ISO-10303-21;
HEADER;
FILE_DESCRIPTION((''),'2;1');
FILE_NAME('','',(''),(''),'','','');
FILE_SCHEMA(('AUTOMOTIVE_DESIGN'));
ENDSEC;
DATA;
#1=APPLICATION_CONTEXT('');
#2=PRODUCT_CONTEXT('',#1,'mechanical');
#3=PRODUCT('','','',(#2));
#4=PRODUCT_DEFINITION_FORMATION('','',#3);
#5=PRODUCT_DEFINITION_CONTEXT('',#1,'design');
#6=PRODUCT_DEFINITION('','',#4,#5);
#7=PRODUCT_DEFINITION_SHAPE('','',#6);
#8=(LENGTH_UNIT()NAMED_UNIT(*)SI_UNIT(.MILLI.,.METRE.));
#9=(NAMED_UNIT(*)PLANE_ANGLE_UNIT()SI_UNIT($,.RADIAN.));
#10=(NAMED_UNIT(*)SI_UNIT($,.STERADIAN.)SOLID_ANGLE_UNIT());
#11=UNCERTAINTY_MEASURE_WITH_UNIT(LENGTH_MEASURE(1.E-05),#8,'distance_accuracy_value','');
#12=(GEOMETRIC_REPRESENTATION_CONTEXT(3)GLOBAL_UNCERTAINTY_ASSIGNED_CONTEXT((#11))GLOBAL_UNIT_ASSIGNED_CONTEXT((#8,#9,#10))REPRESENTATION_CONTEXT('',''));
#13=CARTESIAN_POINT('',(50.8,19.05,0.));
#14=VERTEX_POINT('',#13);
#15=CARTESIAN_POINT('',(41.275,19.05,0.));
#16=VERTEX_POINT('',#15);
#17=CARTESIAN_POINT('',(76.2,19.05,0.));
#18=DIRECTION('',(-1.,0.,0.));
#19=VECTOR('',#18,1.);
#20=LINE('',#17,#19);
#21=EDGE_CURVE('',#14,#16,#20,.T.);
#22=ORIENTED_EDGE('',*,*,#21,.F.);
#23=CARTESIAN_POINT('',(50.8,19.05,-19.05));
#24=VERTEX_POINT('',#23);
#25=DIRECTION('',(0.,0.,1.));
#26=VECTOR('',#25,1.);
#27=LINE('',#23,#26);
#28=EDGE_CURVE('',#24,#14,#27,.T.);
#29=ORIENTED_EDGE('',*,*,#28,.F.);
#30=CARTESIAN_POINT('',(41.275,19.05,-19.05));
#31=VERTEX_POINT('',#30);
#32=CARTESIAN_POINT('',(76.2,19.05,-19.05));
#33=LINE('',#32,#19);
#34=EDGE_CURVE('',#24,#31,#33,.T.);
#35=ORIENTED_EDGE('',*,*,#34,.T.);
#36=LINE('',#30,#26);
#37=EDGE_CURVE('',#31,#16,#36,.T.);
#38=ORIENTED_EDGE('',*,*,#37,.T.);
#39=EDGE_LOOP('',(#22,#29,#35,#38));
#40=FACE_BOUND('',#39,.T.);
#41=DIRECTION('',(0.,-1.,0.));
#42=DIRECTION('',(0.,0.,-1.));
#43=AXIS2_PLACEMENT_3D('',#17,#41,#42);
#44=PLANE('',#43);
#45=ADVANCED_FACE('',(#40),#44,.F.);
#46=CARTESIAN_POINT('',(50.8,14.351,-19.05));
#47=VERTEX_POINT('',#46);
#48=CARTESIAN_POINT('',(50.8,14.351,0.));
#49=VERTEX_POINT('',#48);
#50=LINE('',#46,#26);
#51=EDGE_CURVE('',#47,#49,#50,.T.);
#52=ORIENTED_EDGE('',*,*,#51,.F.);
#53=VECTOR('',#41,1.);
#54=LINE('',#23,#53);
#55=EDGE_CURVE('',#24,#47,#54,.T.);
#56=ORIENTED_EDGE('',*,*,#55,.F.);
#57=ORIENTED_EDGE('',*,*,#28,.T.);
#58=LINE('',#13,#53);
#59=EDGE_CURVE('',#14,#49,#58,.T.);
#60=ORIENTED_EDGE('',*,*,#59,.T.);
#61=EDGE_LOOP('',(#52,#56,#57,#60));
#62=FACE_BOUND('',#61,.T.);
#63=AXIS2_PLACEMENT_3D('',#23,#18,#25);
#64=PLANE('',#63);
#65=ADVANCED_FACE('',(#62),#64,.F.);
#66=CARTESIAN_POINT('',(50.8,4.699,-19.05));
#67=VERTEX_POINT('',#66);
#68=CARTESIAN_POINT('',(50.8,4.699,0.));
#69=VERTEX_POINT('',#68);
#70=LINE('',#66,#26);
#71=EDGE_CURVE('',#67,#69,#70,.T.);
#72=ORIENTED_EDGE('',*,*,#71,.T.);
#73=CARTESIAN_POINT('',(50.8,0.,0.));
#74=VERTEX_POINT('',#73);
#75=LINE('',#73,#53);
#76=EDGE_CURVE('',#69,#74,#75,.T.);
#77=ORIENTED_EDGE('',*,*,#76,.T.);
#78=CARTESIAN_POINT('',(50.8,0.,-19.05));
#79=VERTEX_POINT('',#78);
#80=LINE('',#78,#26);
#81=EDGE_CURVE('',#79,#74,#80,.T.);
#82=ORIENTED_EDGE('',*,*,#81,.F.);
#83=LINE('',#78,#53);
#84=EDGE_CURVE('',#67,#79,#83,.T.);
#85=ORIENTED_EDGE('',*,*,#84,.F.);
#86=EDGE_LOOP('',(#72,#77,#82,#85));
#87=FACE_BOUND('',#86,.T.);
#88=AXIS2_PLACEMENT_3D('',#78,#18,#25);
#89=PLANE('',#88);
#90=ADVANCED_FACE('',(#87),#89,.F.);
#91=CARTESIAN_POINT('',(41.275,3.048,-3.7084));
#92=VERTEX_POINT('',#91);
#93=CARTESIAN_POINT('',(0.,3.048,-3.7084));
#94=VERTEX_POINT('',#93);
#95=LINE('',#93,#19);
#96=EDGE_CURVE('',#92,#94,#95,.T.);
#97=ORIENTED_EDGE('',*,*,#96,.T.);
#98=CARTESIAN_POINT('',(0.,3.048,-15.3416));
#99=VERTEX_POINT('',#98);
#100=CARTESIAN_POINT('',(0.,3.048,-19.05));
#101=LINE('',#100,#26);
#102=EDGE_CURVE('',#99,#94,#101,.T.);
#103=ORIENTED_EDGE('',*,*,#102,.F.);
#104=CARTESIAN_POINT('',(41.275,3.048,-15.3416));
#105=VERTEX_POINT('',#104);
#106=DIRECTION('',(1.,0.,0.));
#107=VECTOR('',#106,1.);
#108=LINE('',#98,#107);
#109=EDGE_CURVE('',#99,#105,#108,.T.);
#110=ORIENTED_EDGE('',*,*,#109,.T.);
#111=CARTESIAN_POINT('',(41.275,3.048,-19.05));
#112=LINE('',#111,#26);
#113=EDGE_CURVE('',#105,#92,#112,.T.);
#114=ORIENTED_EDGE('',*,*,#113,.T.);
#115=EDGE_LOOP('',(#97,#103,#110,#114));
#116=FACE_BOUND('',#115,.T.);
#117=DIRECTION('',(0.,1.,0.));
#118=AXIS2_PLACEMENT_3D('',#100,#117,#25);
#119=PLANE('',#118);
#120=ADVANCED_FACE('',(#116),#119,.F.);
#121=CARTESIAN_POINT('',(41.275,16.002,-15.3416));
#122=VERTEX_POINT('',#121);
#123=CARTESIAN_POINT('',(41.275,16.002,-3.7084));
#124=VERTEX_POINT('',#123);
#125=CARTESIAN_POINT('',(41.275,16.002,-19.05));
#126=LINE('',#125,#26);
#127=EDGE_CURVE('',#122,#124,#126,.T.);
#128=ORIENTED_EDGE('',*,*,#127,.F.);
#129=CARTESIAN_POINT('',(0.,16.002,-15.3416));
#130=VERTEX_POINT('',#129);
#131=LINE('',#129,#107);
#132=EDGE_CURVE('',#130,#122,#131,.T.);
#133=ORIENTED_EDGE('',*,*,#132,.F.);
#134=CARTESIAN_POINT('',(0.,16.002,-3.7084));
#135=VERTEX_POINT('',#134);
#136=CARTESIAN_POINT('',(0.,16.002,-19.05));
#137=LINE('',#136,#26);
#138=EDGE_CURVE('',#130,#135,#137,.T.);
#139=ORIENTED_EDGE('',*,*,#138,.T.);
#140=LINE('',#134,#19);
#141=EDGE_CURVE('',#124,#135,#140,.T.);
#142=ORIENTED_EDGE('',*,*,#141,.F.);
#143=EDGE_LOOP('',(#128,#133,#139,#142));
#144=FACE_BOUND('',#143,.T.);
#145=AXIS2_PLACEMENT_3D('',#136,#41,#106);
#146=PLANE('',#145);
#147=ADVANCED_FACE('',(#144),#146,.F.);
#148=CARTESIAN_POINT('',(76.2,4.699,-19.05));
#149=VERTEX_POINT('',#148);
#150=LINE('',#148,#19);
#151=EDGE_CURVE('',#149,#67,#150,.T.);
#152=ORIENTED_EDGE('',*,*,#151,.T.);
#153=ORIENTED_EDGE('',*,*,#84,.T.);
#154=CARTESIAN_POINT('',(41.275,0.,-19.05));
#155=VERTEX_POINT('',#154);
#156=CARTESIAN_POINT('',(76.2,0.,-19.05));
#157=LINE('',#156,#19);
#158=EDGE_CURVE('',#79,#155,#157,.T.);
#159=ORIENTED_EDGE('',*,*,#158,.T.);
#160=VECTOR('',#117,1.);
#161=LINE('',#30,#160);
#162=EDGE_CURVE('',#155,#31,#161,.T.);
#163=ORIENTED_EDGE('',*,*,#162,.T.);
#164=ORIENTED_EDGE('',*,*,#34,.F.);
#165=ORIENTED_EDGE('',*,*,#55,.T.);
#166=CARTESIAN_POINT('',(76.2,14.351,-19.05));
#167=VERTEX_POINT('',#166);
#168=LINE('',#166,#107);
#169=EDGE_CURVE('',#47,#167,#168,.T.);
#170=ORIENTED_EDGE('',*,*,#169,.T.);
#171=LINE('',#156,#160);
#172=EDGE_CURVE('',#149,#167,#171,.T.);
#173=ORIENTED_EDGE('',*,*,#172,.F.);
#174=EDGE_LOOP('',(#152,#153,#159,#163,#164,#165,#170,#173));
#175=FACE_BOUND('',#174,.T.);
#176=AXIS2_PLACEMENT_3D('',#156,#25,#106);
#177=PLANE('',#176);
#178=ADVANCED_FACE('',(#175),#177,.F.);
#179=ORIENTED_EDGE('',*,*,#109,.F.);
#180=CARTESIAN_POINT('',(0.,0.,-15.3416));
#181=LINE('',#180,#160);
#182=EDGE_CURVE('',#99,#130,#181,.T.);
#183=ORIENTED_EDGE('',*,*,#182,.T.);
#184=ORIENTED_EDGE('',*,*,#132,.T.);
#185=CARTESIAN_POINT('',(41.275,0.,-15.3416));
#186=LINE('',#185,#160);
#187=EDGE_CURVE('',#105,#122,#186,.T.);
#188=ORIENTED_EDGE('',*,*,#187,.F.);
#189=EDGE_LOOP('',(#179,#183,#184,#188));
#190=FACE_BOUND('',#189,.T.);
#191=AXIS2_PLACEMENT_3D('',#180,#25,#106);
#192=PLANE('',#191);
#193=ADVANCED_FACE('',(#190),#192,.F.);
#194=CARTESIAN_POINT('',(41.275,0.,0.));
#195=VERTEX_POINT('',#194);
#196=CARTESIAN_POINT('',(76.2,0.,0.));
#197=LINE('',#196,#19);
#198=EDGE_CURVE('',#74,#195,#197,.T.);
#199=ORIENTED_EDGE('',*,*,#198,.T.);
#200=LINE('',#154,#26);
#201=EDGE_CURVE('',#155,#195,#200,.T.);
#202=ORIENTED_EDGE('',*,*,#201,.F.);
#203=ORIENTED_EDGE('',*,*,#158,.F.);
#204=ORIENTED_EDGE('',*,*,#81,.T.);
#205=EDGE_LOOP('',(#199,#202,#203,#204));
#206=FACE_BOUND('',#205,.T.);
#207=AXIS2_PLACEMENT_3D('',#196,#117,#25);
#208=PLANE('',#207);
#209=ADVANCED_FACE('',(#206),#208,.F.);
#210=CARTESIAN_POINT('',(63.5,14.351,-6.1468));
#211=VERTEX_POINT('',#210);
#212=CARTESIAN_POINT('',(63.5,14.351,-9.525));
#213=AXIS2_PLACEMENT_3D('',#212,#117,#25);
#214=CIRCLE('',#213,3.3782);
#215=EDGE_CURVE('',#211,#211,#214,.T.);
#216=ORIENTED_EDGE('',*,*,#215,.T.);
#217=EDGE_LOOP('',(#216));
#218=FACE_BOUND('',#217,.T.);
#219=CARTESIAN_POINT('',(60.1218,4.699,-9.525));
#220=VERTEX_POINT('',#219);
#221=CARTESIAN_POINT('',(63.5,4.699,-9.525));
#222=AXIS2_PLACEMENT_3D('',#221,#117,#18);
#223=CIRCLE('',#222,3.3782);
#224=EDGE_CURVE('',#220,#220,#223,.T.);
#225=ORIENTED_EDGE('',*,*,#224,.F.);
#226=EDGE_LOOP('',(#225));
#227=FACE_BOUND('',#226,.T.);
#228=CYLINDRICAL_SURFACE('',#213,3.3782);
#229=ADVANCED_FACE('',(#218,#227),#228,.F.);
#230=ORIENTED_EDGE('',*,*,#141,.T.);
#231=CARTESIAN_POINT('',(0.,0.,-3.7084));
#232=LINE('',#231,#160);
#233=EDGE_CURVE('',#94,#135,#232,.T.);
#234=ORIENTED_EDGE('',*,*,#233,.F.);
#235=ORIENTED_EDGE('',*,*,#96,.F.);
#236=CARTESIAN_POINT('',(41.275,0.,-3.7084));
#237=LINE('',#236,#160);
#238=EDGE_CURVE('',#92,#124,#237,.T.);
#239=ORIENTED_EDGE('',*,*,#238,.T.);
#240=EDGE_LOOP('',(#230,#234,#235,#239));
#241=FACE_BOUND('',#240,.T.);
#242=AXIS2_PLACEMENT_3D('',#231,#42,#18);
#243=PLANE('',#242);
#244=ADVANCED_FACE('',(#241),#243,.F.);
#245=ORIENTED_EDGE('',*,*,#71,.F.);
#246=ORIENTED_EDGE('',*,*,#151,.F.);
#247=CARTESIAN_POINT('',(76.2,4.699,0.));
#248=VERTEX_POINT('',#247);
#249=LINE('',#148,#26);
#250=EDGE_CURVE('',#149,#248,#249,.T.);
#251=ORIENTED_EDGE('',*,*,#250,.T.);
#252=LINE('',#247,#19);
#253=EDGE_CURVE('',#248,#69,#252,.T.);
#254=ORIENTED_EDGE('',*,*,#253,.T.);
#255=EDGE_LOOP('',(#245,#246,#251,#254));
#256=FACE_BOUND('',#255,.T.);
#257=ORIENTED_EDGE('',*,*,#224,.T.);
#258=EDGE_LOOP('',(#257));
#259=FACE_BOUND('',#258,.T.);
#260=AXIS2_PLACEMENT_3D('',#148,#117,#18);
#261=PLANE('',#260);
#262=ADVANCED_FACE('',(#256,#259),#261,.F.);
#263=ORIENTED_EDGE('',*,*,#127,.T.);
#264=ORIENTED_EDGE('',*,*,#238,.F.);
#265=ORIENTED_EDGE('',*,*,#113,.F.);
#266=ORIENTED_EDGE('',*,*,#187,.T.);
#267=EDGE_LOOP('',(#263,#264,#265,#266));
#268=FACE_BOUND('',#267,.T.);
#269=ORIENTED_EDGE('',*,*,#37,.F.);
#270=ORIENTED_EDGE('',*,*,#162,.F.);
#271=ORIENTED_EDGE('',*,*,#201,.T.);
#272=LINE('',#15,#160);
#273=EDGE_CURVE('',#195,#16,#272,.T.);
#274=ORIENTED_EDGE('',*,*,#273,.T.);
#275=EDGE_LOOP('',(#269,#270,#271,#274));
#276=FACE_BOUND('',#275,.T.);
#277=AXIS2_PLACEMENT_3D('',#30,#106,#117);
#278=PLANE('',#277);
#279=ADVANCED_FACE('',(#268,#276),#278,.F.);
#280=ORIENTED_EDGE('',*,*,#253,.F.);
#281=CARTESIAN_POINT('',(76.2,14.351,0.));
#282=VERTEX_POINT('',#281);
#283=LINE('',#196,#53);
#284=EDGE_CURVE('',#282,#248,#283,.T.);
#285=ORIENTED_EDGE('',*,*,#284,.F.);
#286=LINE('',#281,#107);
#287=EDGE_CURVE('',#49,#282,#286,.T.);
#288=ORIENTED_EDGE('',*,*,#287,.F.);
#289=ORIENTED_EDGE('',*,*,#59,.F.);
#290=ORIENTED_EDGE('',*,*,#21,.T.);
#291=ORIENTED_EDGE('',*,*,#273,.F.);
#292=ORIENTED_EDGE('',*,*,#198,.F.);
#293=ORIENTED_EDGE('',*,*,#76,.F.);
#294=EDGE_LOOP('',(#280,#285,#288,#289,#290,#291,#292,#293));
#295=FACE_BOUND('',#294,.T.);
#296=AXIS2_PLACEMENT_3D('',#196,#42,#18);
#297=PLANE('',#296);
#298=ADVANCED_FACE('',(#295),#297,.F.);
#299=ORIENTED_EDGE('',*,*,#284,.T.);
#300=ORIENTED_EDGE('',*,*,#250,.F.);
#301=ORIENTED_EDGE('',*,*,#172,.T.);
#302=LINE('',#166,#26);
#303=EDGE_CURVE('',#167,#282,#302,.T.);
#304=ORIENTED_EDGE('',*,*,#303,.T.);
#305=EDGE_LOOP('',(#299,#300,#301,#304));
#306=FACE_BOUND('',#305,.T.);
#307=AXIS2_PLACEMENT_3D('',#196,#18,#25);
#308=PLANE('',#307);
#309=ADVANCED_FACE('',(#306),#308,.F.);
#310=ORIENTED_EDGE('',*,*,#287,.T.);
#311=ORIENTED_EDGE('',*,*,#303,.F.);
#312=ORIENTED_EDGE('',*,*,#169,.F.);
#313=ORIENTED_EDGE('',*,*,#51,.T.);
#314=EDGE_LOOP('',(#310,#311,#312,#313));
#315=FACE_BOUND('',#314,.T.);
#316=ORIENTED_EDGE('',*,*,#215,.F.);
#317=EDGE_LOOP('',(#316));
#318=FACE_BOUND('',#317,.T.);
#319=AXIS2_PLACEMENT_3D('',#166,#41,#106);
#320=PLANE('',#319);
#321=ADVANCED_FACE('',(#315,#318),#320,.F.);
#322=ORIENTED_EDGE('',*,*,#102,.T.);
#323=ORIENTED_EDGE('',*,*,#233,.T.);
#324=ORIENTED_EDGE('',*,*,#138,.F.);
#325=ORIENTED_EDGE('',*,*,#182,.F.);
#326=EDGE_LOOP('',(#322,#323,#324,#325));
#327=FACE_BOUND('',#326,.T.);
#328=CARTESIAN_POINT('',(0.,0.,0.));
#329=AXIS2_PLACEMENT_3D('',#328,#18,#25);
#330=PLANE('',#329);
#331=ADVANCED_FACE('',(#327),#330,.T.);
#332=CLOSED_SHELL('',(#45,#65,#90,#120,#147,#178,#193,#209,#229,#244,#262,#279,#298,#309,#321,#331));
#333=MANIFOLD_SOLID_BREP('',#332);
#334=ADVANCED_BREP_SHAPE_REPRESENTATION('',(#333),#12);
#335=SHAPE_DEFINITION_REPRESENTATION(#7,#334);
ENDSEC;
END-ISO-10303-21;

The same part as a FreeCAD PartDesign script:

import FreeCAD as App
import Part
import Sketcher
Q = App.Units.Quantity


def add_polygon(sketch, points):
    """Adds a closed chain of lines whose ends are joined by coincident constraints."""
    first, n = sketch.GeometryCount, len(points)
    for a, b in zip(points, points[1:] + points[:1]):
        sketch.addGeometry(Part.LineSegment(App.Vector(*a, 0), App.Vector(*b, 0)), False)
    for i in range(n):
        sketch.addConstraint(Sketcher.Constraint("Coincident", first + i, 2, first + (i + 1) % n, 1))

doc = App.newDocument("Part")
body = doc.addObject("PartDesign::Body", "Body")

sketch1 = doc.addObject("Sketcher::SketchObject", "Sketch")
body.addObject(sketch1)
sketch1.AttachmentSupport = (doc.YZ_Plane, [""])
sketch1.MapMode = "FlatFace"
add_polygon(sketch1, [(19.05, 0), (0, 0), (0, -19.05), (19.05, -19.05)])
sketch1.addConstraint([
    Sketcher.Constraint("Horizontal", 0),
    Sketcher.Constraint("Vertical", 1),
    Sketcher.Constraint("Horizontal", 2),
    Sketcher.Constraint("Vertical", 3),
    Sketcher.Constraint("Coincident", 0, 2, -1, 1),
    Sketcher.Constraint("Equal", 2, 1),
    Sketcher.Constraint("DistanceX", 0, 2, 0, 1, Q("0.75 in")),
])
pad1 = doc.addObject("PartDesign::Pad", "Pad")
body.addObject(pad1)
pad1.Profile = sketch1
pad1.Length = Q("3 in")

sketch2 = doc.addObject("Sketcher::SketchObject", "Sketch001")
body.addObject(sketch2)
sketch2.AttachmentSupport = (doc.XY_Plane, [""])
sketch2.MapMode = "FlatFace"
add_polygon(sketch2, [(50.8, 19.05), (50.8, 14.351), (76.2, 14.351), (76.2, 19.05)])
add_polygon(sketch2, [(50.8, 4.699), (50.8, 0), (76.2, 0), (76.2, 4.699)])
sketch2.addConstraint([
    Sketcher.Constraint("Vertical", 0),
    Sketcher.Constraint("Horizontal", 1),
    Sketcher.Constraint("Vertical", 2),
    Sketcher.Constraint("Horizontal", 3),
    Sketcher.Constraint("Vertical", 4),
    Sketcher.Constraint("Horizontal", 5),
    Sketcher.Constraint("Vertical", 6),
    Sketcher.Constraint("Horizontal", 7),
    Sketcher.Constraint("PointOnObject", 4, 2, -1),
    Sketcher.Constraint("Vertical", 3, 2, 4, 2),
    Sketcher.Constraint("Vertical", 2, 2, 5, 2),
    Sketcher.Constraint("Equal", 2, 4),
    Sketcher.Constraint("DistanceX", 1, 1, 1, 2, Q("1 in")),
    Sketcher.Constraint("DistanceX", -1, 1, 0, 2, Q("2 in")),
    Sketcher.Constraint("DistanceY", 0, 2, 0, 1, Q("0.185 in")),
    Sketcher.Constraint("DistanceY", -1, 1, 2, 2, Q("0.75 in")),
])
pocket1 = doc.addObject("PartDesign::Pocket", "Pocket")
body.addObject(pocket1)
pocket1.Profile = sketch2
pocket1.Type = "ThroughAll"

sketch3 = doc.addObject("Sketcher::SketchObject", "Sketch002")
body.addObject(sketch3)
sketch3.AttachmentSupport = (doc.XY_Plane, [""])
sketch3.MapMode = "FlatFace"
add_polygon(sketch3, [(0, 19.05), (0, 16.002), (41.275, 16.002), (41.275, 19.05)])
add_polygon(sketch3, [(0, 3.048), (0, 0), (41.275, 0), (41.275, 3.048)])
sketch3.addConstraint([
    Sketcher.Constraint("Vertical", 0),
    Sketcher.Constraint("Horizontal", 1),
    Sketcher.Constraint("Vertical", 2),
    Sketcher.Constraint("Horizontal", 3),
    Sketcher.Constraint("Vertical", 4),
    Sketcher.Constraint("Horizontal", 5),
    Sketcher.Constraint("Vertical", 6),
    Sketcher.Constraint("Horizontal", 7),
    Sketcher.Constraint("Coincident", 4, 2, -1, 1),
    Sketcher.Constraint("PointOnObject", 0, 2, -2),
    Sketcher.Constraint("Vertical", 2, 2, 5, 2),
    Sketcher.Constraint("Equal", 2, 4),
    Sketcher.Constraint("DistanceY", 0, 2, 0, 1, Q("0.12 in")),
    Sketcher.Constraint("DistanceX", 1, 1, 1, 2, Q("1.625 in")),
    Sketcher.Constraint("DistanceY", -1, 1, 0, 2, Q("0.63 in")),
])
pocket2 = doc.addObject("PartDesign::Pocket", "Pocket001")
body.addObject(pocket2)
pocket2.Profile = sketch3
pocket2.Type = "ThroughAll"

sketch4 = doc.addObject("Sketcher::SketchObject", "Sketch003")
body.addObject(sketch4)
sketch4.AttachmentSupport = (doc.XZ_Plane, [""])
sketch4.MapMode = "FlatFace"
sketch4.AttachmentOffset = App.Placement(App.Vector(0, 0, -0.63 * 25.4), App.Rotation())
add_polygon(sketch4, [(0, -19.05), (0, -15.3416), (41.275, -15.3416), (41.275, -19.05)])
add_polygon(sketch4, [(0, -3.7084), (0, 0), (41.275, 0), (41.275, -3.7084)])
sketch4.addConstraint([
    Sketcher.Constraint("Vertical", 0),
    Sketcher.Constraint("Horizontal", 1),
    Sketcher.Constraint("Vertical", 2),
    Sketcher.Constraint("Horizontal", 3),
    Sketcher.Constraint("Vertical", 4),
    Sketcher.Constraint("Horizontal", 5),
    Sketcher.Constraint("Vertical", 6),
    Sketcher.Constraint("Horizontal", 7),
    Sketcher.Constraint("Coincident", 4, 2, -1, 1),
    Sketcher.Constraint("PointOnObject", 0, 2, -2),
    Sketcher.Constraint("Vertical", 2, 2, 5, 2),
    Sketcher.Constraint("Equal", 2, 4),
    Sketcher.Constraint("DistanceX", 1, 1, 1, 2, Q("1.625 in")),
    Sketcher.Constraint("DistanceY", 0, 1, 0, 2, Q("0.146 in")),
    Sketcher.Constraint("DistanceY", 2, 2, -1, 1, Q("0.75 in")),
])
pocket3 = doc.addObject("PartDesign::Pocket", "Pocket002")
body.addObject(pocket3)
pocket3.Profile = sketch4
pocket3.Type = "ThroughAll"
pocket3.Reversed = True

sketch5 = doc.addObject("Sketcher::SketchObject", "Sketch004")
body.addObject(sketch5)
sketch5.AttachmentSupport = (doc.XZ_Plane, [""])
sketch5.MapMode = "FlatFace"
sketch5.AttachmentOffset = App.Placement(App.Vector(0, 0, -0.565 * 25.4), App.Rotation())
sketch5.addGeometry(Part.Circle(App.Vector(63.5, -9.525, 0), App.Vector(0, 0, 1), 3.3782), False)
sketch5.addConstraint([
    Sketcher.Constraint("Diameter", 0, Q("0.266 in")),
    Sketcher.Constraint("DistanceX", -1, 1, 0, 3, Q("2.5 in")),
    Sketcher.Constraint("DistanceY", 0, 3, -1, 1, Q("0.375 in")),
])
doc.recompute()
hole = doc.addObject("PartDesign::Hole", "Hole")
body.addObject(hole)
hole.Profile = sketch5
hole.ThreadType = "None"
hole.Diameter = Q("0.266 in")
hole.DepthType = "ThroughAll"
hole.Reversed = True

doc.recompute()
